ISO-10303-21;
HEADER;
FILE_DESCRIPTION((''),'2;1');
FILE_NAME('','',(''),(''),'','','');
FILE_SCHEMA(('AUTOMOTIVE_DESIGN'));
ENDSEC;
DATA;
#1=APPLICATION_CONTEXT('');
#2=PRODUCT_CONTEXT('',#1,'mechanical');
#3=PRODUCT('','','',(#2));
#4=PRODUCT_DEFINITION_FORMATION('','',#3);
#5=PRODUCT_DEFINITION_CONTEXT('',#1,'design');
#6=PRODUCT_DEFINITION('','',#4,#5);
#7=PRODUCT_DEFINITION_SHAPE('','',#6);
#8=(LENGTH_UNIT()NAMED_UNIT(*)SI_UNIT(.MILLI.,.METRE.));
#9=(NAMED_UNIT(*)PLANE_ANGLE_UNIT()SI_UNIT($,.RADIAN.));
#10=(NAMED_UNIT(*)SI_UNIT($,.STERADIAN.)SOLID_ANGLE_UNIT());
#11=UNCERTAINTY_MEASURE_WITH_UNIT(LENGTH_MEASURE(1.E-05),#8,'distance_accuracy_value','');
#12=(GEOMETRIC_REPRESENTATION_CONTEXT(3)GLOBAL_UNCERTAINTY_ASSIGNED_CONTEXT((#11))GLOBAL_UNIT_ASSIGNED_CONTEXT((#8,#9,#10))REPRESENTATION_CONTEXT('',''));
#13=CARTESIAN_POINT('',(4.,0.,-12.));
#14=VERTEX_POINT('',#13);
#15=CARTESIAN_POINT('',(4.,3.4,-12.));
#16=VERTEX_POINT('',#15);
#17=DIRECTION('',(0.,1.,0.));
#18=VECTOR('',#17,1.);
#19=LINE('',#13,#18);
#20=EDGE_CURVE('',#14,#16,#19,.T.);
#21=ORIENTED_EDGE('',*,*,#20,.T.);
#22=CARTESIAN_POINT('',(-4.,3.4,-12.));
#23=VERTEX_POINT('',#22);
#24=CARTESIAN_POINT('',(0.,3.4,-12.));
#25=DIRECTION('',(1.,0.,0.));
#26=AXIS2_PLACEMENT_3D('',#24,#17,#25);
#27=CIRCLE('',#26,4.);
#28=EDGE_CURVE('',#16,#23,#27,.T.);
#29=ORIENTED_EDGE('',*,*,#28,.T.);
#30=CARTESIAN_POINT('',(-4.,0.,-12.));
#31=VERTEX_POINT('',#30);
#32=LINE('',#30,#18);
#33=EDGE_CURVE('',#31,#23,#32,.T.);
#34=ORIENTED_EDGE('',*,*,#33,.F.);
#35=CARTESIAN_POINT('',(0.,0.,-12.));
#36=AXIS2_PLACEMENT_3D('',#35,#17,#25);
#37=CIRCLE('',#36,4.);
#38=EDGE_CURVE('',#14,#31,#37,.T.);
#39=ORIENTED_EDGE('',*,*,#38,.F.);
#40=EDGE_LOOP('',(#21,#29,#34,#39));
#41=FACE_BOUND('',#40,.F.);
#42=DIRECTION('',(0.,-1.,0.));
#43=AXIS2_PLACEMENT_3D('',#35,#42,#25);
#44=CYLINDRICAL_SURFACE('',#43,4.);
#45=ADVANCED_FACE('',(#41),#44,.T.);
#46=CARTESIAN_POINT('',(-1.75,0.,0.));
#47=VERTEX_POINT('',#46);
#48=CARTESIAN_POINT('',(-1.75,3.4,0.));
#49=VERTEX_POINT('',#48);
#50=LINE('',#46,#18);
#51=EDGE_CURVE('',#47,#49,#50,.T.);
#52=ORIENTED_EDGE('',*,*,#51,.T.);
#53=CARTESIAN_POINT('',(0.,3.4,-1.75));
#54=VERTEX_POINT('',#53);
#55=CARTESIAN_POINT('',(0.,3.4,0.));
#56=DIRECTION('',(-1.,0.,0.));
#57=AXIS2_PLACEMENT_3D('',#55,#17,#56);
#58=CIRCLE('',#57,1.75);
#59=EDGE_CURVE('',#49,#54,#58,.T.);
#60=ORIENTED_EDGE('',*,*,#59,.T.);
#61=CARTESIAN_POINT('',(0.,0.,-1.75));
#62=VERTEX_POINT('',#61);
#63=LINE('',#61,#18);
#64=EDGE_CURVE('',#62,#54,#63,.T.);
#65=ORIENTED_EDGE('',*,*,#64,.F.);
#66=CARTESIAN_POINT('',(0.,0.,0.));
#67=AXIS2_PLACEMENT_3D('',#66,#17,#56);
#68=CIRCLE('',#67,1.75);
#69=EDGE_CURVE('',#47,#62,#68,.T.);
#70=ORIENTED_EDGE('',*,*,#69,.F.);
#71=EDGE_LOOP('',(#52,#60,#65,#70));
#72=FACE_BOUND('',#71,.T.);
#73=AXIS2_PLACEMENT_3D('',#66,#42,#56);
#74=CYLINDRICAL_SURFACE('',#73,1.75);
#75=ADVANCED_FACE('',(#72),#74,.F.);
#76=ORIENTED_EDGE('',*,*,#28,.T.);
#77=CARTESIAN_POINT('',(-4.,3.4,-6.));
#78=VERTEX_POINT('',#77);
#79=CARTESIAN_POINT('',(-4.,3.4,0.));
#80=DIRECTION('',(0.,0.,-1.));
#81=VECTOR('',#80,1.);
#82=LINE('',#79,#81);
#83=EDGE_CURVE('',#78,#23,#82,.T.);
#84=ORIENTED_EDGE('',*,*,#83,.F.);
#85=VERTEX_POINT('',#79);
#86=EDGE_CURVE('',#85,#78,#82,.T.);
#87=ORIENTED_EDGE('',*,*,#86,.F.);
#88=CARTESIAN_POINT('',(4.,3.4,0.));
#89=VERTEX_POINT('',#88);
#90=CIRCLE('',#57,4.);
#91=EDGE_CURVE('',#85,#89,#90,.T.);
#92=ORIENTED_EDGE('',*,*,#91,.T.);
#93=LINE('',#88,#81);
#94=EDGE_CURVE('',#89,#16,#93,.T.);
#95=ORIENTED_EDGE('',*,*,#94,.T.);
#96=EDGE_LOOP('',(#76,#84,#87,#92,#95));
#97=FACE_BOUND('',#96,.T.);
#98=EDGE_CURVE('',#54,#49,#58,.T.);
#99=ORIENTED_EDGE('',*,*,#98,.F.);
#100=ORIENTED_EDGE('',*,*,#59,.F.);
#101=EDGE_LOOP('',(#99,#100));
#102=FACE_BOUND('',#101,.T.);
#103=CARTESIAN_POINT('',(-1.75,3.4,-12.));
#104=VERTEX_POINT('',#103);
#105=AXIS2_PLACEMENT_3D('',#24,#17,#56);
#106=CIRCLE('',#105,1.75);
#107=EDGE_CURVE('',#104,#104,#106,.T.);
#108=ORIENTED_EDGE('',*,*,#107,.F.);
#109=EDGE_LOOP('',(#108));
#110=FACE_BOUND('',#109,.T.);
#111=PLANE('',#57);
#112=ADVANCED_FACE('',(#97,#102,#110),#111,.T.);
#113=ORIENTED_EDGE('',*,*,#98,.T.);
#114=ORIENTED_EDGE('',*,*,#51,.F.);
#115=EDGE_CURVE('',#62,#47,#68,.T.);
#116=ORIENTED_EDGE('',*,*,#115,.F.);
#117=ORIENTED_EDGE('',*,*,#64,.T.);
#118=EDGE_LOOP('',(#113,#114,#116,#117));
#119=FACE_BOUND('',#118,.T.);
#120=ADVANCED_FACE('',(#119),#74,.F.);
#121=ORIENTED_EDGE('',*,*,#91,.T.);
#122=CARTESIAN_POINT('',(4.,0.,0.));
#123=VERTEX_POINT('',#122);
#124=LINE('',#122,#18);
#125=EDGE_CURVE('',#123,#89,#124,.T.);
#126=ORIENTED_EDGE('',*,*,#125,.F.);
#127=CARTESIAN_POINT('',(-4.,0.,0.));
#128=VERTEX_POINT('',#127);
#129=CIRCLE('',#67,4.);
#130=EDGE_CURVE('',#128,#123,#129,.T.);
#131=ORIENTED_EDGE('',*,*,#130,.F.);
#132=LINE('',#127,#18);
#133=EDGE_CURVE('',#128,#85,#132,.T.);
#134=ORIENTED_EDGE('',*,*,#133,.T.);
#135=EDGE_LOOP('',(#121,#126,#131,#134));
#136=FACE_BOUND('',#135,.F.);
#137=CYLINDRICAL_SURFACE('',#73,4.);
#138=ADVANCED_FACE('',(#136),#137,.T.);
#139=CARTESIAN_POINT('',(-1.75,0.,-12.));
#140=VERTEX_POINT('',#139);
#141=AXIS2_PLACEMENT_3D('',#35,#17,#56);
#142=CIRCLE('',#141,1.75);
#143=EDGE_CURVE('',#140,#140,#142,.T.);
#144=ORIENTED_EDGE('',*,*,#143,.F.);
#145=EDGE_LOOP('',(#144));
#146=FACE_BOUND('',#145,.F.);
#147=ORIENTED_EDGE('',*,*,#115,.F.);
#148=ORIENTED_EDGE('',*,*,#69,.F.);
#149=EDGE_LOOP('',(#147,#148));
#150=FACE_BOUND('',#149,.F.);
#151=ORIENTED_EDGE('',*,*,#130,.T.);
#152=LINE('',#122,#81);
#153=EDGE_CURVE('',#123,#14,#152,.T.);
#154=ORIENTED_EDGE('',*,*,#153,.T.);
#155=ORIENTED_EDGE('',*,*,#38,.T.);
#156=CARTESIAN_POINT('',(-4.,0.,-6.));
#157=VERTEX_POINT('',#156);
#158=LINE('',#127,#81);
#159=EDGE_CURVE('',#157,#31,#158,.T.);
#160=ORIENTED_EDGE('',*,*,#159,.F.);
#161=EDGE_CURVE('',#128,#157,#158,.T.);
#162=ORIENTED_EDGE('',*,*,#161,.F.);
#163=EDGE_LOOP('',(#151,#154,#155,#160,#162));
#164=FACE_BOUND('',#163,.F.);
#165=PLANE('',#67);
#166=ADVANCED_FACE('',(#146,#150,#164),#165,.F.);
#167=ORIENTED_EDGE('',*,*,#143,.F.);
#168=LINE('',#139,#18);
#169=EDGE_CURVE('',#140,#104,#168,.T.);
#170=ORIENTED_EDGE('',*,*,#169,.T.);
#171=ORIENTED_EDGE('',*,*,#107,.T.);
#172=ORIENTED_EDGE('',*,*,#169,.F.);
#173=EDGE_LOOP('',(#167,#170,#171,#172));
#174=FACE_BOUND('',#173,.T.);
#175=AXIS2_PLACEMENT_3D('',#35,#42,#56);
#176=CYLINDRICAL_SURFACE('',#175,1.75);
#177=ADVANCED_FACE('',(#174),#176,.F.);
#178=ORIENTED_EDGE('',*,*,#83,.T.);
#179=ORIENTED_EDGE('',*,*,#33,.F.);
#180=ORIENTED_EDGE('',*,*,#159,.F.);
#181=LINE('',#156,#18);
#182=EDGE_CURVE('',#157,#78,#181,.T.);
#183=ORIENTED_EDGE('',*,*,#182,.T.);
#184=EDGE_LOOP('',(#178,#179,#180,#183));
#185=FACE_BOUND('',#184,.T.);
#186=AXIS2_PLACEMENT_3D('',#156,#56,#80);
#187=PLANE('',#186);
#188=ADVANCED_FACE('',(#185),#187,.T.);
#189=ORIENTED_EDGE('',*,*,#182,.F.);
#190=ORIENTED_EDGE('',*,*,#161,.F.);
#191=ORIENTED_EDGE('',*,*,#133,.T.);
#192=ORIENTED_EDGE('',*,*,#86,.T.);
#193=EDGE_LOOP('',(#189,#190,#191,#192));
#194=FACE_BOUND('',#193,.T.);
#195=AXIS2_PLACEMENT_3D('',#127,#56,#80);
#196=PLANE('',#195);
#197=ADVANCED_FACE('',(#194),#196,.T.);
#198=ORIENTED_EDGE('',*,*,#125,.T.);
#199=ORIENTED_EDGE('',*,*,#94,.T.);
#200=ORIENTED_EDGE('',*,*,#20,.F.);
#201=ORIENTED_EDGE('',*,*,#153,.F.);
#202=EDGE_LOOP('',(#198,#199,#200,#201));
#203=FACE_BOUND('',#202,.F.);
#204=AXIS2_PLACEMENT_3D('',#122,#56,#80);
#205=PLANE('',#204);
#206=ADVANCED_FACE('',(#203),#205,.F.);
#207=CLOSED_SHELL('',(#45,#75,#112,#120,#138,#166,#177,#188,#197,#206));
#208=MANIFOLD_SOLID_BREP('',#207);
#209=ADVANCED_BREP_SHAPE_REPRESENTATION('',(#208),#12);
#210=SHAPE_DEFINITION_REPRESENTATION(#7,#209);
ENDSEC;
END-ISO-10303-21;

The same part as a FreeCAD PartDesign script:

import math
import FreeCAD as App
import Part
import Sketcher
from FreeCAD import Vector
Q = App.Units.Quantity

doc = App.newDocument("Part")
body = doc.addObject("PartDesign::Body", "Body")

# Sketch on XZ plane
sketch1 = body.newObject("Sketcher::SketchObject", "Sketch")
sketch1.AttachmentSupport = (doc.getObject("XZ_Plane"), [""])
sketch1.MapMode = "FlatFace"
sketch1.addGeometry(Part.LineSegment(Vector(-4, -12, 0), Vector(-4, 0, 0)), False)
sketch1.addGeometry(Part.ArcOfCircle(Part.Circle(Vector(0, 0, 0), Vector(0, 0, 1), 4), math.radians(0), math.radians(180)), False)
sketch1.addGeometry(Part.LineSegment(Vector(4, 0, 0), Vector(4, -12, 0)), False)
sketch1.addGeometry(Part.ArcOfCircle(Part.Circle(Vector(0, -12, 0), Vector(0, 0, 1), 4), math.radians(180), math.radians(360)), False)
sketch1.addGeometry(Part.Circle(Vector(0, -12, 0), Vector(0, 0, 1), 1.8), False)
sketch1.addGeometry(Part.Circle(Vector(0, 0, 0), Vector(0, 0, 1), 1.8), False)
sketch1.addConstraint(Sketcher.Constraint("Tangent", 0, 2, 1, 2))
sketch1.addConstraint(Sketcher.Constraint("Tangent", 1, 1, 2, 1))
sketch1.addConstraint(Sketcher.Constraint("Tangent", 2, 2, 3, 2))
sketch1.addConstraint(Sketcher.Constraint("Tangent", 3, 1, 0, 1))
sketch1.addConstraint(Sketcher.Constraint("Vertical", 0))
sketch1.addConstraint(Sketcher.Constraint("Vertical", 2))
sketch1.addConstraint(Sketcher.Constraint("Coincident", 1, 3, -1, 1))
sketch1.addConstraint(Sketcher.Constraint("Coincident", 5, 3, -1, 1))
sketch1.addConstraint(Sketcher.Constraint("Coincident", 4, 3, 3, 3))
sketch1.addConstraint(Sketcher.Constraint("Equal", 4, 5))
sketch1.addConstraint(Sketcher.Constraint("Radius", 1, Q("4 mm")))
sketch1.addConstraint(Sketcher.Constraint("Diameter", 4, Q("3.5 mm")))
sketch1.addConstraint(Sketcher.Constraint("DistanceY", 0, 1, 0, 2, Q("12 mm")))
pad1 = body.newObject("PartDesign::Pad", "Pad")
pad1.Profile = sketch1
pad1.Length = 3.4
pad1.Reversed = True

doc.recompute()
